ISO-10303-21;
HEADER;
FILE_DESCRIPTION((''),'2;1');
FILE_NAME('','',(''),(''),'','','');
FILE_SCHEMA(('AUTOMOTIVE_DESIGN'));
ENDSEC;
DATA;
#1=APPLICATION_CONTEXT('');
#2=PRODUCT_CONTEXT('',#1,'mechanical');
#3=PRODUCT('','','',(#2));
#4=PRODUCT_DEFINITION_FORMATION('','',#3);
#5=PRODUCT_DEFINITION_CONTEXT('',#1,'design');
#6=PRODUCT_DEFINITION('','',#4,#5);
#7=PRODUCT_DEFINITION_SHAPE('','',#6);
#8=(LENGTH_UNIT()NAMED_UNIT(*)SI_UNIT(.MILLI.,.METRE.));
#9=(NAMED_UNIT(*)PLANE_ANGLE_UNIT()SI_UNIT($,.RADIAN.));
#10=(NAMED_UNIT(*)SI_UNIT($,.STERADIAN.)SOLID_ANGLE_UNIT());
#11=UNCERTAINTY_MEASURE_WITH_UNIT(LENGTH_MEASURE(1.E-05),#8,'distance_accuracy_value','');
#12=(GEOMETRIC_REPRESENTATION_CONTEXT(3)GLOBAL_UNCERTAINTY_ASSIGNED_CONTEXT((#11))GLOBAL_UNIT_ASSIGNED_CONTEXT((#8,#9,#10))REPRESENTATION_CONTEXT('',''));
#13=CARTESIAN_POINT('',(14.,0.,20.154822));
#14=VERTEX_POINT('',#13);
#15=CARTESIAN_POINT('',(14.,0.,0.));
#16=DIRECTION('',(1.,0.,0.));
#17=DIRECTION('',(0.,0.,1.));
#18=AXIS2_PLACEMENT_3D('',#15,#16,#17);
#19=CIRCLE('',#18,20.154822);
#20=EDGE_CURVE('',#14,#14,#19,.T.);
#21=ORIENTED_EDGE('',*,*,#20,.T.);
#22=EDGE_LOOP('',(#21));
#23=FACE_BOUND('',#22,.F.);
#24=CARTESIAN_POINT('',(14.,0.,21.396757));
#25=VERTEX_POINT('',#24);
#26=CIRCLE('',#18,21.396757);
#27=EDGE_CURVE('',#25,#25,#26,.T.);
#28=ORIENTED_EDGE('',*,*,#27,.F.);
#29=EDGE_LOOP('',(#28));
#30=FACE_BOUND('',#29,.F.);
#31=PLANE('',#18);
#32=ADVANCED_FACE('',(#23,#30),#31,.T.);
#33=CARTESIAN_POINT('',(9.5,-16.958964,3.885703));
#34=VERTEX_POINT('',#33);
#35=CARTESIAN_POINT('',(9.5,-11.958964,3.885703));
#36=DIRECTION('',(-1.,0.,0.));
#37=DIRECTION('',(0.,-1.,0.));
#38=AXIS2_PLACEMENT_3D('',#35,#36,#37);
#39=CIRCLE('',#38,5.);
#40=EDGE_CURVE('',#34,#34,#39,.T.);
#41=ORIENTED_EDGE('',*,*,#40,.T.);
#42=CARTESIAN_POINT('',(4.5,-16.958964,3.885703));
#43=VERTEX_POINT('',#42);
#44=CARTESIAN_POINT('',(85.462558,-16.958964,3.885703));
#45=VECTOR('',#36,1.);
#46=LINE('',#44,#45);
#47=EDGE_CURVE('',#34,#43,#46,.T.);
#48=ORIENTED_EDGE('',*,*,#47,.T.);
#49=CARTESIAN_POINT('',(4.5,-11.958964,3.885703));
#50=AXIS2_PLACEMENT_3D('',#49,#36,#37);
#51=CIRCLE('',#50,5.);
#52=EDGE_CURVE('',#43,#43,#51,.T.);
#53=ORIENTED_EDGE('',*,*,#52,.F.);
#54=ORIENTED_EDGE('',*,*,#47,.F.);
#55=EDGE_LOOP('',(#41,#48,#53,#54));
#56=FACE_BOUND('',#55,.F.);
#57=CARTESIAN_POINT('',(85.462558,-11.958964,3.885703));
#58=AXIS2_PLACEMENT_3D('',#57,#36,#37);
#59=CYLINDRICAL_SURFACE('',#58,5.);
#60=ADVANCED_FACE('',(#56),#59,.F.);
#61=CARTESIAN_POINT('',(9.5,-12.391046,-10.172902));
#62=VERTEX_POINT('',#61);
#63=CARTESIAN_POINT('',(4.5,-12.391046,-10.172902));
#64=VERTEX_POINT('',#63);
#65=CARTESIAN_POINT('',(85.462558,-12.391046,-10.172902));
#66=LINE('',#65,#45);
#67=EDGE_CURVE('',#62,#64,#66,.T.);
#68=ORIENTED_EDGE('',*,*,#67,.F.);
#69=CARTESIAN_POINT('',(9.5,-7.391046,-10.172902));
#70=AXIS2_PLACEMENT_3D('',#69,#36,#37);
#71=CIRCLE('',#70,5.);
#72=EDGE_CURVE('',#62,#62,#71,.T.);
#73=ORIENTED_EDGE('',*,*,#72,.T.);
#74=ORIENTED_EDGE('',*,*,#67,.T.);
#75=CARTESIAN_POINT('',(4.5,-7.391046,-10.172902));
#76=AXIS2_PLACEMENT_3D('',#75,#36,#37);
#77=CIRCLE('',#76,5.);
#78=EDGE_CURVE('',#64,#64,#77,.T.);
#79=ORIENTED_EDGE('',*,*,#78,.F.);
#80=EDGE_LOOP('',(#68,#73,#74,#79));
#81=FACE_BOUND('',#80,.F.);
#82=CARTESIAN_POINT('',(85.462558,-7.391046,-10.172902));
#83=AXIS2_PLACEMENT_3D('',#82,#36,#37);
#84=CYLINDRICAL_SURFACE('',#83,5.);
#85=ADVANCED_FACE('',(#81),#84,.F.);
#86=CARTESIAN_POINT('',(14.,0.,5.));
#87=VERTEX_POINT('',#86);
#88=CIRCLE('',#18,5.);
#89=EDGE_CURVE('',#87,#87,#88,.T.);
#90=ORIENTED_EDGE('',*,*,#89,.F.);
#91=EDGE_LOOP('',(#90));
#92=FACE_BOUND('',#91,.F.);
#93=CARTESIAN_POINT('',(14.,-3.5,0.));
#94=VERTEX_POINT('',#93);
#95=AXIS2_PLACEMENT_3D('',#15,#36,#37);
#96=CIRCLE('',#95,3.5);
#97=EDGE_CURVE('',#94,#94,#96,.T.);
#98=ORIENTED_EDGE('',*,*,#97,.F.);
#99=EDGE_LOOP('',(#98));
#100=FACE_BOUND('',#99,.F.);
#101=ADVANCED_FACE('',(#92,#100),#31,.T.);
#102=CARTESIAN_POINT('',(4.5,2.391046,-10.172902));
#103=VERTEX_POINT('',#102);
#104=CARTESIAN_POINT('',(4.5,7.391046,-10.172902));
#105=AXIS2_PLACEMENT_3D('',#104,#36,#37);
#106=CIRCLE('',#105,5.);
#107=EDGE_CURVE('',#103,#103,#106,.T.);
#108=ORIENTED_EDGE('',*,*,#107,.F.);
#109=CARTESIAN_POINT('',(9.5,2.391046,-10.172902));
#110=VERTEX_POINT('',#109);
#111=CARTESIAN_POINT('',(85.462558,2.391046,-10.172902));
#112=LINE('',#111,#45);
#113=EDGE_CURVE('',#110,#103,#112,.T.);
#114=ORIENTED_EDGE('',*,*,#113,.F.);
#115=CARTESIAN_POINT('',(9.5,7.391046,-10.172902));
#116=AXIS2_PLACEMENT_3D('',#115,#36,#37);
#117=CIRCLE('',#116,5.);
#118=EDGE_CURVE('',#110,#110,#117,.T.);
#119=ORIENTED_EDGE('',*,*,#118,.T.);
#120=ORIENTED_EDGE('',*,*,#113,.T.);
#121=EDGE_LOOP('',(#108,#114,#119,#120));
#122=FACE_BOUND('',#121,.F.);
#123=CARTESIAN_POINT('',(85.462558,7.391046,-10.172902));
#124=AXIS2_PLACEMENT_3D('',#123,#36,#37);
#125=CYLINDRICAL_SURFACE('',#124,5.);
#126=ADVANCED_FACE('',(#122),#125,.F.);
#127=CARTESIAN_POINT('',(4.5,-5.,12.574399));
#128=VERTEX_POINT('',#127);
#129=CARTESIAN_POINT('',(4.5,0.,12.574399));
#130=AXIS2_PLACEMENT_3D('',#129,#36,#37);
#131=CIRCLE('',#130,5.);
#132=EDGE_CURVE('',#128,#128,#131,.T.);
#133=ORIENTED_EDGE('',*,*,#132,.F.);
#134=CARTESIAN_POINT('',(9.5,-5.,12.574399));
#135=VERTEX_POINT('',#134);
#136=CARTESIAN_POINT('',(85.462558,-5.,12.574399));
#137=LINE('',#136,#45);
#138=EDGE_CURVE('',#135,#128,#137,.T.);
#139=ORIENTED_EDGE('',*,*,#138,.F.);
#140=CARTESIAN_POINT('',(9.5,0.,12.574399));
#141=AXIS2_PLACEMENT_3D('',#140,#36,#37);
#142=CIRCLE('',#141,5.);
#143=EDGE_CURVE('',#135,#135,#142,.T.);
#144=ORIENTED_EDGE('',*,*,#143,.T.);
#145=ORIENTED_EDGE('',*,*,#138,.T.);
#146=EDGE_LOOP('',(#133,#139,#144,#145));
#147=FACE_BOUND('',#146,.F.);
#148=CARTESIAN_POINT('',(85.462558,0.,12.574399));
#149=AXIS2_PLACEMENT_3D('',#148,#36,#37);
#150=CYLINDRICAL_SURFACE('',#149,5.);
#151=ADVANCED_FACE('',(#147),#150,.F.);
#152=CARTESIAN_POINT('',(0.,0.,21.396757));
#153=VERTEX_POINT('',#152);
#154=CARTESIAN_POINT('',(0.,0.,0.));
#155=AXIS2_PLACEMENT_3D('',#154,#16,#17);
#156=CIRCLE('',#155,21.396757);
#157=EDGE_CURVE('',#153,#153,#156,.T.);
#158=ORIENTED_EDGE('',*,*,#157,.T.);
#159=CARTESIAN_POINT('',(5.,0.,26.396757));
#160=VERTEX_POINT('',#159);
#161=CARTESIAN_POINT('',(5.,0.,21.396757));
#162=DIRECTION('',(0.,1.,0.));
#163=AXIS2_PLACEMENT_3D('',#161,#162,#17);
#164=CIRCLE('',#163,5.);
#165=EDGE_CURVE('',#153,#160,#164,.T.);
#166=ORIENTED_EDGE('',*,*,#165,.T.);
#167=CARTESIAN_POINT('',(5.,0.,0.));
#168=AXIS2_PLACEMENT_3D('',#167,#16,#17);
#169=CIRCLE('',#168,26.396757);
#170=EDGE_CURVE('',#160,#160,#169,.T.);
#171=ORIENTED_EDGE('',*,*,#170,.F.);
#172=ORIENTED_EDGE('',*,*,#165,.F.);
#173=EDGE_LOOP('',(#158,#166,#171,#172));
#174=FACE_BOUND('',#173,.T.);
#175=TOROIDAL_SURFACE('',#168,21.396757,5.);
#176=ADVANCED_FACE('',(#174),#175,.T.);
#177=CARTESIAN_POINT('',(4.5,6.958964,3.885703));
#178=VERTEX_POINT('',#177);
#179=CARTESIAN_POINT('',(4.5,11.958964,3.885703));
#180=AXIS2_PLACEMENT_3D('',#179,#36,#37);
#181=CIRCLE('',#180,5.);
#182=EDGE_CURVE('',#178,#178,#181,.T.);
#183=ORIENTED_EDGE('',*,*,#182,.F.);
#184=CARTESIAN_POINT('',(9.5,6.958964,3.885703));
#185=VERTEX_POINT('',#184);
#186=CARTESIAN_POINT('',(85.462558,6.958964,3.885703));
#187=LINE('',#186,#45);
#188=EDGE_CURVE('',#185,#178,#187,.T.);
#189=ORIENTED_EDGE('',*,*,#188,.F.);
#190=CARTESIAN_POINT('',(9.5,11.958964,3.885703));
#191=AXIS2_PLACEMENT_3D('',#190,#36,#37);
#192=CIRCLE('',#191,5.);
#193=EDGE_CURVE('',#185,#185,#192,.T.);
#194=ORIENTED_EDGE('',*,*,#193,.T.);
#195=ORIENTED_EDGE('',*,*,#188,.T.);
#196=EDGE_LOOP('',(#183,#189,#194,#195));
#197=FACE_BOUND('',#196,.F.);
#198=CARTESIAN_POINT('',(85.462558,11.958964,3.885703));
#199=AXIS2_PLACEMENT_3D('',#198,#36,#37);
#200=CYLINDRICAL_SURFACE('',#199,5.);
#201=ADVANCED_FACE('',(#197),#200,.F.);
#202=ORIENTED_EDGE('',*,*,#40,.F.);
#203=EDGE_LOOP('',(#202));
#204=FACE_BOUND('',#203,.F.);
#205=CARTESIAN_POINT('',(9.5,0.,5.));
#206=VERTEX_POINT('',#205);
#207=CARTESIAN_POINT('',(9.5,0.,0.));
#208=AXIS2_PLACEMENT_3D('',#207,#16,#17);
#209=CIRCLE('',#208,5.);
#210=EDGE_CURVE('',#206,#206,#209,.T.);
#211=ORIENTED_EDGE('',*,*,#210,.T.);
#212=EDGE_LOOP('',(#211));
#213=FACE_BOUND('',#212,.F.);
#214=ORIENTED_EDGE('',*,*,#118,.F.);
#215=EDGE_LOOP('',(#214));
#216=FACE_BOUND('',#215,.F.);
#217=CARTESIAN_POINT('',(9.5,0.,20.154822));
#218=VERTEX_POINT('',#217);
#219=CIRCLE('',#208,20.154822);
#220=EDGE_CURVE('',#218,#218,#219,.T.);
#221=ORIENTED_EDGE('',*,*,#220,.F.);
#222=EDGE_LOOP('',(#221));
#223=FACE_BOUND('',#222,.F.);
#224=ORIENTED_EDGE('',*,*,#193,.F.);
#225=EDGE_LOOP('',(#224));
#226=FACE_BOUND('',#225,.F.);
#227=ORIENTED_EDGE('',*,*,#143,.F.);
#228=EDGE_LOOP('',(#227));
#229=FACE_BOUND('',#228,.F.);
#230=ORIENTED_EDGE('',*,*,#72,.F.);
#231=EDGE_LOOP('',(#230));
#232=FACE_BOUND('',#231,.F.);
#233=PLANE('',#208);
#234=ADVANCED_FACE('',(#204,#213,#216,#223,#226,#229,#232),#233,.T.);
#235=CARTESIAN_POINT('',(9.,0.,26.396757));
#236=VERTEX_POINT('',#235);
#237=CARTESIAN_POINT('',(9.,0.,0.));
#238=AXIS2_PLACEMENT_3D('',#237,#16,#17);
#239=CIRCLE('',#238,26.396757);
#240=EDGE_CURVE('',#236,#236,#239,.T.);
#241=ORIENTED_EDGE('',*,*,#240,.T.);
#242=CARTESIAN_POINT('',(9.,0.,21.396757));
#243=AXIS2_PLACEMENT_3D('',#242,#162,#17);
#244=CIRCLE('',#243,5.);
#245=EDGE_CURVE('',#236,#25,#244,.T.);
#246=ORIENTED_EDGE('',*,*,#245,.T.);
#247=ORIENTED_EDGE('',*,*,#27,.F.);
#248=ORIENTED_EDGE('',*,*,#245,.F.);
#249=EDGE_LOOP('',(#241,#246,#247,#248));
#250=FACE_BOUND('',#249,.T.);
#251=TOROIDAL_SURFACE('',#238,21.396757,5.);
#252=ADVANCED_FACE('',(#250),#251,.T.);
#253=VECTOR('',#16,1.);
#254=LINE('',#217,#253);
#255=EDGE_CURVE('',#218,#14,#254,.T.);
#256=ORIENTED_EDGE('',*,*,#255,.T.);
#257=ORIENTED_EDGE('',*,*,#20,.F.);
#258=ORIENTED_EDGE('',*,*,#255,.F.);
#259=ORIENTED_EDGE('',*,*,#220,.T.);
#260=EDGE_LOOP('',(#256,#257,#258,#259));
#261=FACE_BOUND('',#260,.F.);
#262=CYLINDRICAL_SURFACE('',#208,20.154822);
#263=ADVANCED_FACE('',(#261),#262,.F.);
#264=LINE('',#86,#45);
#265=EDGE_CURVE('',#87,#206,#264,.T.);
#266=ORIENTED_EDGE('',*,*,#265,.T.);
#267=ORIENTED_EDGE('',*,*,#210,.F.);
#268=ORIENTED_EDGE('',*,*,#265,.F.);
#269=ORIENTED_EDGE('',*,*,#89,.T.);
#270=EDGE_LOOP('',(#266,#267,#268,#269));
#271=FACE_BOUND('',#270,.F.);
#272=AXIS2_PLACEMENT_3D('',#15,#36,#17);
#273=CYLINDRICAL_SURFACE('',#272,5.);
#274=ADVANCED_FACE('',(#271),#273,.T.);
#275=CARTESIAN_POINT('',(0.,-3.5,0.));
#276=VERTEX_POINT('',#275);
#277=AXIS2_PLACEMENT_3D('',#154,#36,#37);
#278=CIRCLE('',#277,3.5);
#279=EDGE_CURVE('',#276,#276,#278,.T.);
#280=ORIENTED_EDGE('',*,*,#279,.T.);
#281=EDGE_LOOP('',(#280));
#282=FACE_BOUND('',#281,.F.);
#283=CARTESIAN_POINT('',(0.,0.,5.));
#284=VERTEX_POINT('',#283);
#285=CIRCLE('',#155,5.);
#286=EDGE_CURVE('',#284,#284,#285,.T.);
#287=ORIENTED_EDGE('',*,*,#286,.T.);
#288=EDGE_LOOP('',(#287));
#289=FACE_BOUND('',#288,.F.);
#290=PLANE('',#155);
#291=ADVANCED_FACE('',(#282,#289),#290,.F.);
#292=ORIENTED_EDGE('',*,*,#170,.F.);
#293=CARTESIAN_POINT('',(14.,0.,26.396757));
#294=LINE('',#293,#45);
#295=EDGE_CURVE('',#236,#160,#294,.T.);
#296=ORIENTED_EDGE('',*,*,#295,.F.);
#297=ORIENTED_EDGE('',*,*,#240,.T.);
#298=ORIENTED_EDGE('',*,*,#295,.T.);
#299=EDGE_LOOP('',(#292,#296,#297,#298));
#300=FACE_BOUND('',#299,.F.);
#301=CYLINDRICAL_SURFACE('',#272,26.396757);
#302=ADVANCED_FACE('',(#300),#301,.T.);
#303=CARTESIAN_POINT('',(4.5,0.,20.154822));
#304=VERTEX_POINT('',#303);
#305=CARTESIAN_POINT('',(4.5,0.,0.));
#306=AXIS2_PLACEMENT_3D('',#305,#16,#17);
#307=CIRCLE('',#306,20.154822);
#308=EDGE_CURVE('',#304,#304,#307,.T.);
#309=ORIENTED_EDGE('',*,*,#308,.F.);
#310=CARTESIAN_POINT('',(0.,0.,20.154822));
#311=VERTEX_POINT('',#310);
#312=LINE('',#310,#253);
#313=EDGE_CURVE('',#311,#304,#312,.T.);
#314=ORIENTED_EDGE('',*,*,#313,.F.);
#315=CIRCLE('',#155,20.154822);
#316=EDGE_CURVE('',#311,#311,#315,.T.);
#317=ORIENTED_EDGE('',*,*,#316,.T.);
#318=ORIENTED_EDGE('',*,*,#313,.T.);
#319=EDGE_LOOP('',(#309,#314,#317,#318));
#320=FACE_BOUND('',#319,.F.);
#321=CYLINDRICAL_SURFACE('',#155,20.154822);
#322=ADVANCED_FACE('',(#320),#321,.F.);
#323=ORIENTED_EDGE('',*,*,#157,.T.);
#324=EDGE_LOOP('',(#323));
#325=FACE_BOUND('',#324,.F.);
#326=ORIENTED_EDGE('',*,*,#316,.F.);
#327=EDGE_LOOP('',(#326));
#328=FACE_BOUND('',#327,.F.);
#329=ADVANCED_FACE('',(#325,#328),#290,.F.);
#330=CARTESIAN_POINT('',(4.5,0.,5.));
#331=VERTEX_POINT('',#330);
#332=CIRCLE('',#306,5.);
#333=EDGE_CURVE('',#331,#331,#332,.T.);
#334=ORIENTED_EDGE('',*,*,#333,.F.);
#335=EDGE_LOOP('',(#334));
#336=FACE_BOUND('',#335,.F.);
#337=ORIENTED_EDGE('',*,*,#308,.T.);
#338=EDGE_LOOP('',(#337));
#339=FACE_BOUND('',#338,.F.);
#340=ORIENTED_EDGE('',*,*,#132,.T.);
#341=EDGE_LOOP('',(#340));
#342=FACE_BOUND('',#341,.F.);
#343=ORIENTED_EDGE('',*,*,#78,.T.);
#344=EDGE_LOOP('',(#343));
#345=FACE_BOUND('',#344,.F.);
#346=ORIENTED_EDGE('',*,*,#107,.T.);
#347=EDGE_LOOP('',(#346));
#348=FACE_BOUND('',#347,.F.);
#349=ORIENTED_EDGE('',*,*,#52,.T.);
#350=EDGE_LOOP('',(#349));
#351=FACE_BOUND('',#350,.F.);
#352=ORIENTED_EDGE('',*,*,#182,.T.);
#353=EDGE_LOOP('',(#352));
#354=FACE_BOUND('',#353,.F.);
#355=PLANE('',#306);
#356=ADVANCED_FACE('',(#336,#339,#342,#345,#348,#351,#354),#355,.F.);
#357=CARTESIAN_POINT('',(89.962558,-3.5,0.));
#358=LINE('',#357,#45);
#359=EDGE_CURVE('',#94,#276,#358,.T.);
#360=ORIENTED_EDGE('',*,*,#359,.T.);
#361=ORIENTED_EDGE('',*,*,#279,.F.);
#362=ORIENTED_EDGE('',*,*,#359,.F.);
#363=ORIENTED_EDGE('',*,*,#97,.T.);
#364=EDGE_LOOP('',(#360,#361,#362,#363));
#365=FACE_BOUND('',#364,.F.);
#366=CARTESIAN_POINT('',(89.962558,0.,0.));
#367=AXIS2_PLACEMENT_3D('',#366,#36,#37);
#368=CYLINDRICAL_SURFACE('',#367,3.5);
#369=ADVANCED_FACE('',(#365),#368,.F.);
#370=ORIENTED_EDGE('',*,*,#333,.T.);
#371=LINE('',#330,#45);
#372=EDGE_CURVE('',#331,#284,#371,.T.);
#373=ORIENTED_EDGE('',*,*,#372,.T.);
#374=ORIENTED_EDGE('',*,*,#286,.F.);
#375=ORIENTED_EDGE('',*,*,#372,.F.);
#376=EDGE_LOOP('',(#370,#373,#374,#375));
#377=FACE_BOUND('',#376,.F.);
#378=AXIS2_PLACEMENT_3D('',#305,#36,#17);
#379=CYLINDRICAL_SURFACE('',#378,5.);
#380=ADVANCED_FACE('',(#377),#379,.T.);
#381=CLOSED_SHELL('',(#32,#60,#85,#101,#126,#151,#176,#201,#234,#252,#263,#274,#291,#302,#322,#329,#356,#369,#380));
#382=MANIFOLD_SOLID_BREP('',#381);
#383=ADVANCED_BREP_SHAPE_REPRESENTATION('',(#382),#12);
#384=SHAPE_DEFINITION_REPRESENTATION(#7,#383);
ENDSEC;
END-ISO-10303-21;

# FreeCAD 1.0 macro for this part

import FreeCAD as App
import Part
import Sketcher
from FreeCAD import Vector


def edges_at(feature, points):
    """Names of the edges that pass closest to the given points."""
    edges = feature.Shape.Edges
    near = lambda p: min(range(len(edges)), key=lambda i: edges[i].distToShape(Part.Vertex(*p))[0])
    return sorted({f"Edge{near(p) + 1}" for p in points})

doc = App.newDocument("Part")
body = doc.addObject("PartDesign::Body", "Body")

# Sketch on XZ plane
sketch1 = body.newObject("Sketcher::SketchObject", "Sketch")
sketch1.AttachmentSupport = (doc.getObject("XZ_Plane"), [""])
sketch1.MapMode = "FlatFace"
sketch1.addGeometry([
    Part.LineSegment(Vector(0, 5, 0), Vector(0, 0, 0)),  # 0
    Part.LineSegment(Vector(0, 0, 0), Vector(14, 0, 0)),  # 1
    Part.LineSegment(Vector(14, 0, 0), Vector(14, 5, 0)),  # 2
    Part.LineSegment(Vector(14, 5, 0), Vector(9.5, 5, 0)),  # 3
    Part.LineSegment(Vector(9.5, 5, 0), Vector(9.5, 20.2, 0)),  # 4
    Part.LineSegment(Vector(9.5, 20.2, 0), Vector(14, 20.2, 0)),  # 5
    Part.LineSegment(Vector(14, 20.2, 0), Vector(14, 26.4, 0)),  # 6
    Part.LineSegment(Vector(14, 26.4, 0), Vector(0, 26.4, 0)),  # 7
    Part.LineSegment(Vector(0, 26.4, 0), Vector(0, 20.2, 0)),  # 8
    Part.LineSegment(Vector(0, 20.2, 0), Vector(4.5, 20.2, 0)),  # 9
    Part.LineSegment(Vector(4.5, 20.2, 0), Vector(4.5, 5, 0)),  # 10
    Part.LineSegment(Vector(4.5, 5, 0), Vector(0, 5, 0)),  # 11
], False)
sketch1.addConstraint([
    Sketcher.Constraint("Coincident", 0, 2, 1, 1),
    Sketcher.Constraint("Coincident", 1, 2, 2, 1),
    Sketcher.Constraint("Coincident", 2, 2, 3, 1),
    Sketcher.Constraint("Coincident", 3, 2, 4, 1),
    Sketcher.Constraint("Coincident", 4, 2, 5, 1),
    Sketcher.Constraint("Coincident", 5, 2, 6, 1),
    Sketcher.Constraint("Coincident", 6, 2, 7, 1),
    Sketcher.Constraint("Coincident", 7, 2, 8, 1),
    Sketcher.Constraint("Coincident", 8, 2, 9, 1),
    Sketcher.Constraint("Coincident", 9, 2, 10, 1),
    Sketcher.Constraint("Coincident", 10, 2, 11, 1),
    Sketcher.Constraint("Coincident", 11, 2, 0, 1),
    Sketcher.Constraint("Vertical", 0),
    Sketcher.Constraint("Horizontal", 1),
    Sketcher.Constraint("Vertical", 2),
    Sketcher.Constraint("Horizontal", 3),
    Sketcher.Constraint("Vertical", 4),
    Sketcher.Constraint("Horizontal", 5),
    Sketcher.Constraint("Vertical", 6),
    Sketcher.Constraint("Horizontal", 7),
    Sketcher.Constraint("Vertical", 8),
    Sketcher.Constraint("Horizontal", 9),
    Sketcher.Constraint("Vertical", 10),
    Sketcher.Constraint("Horizontal", 11),
    Sketcher.Constraint("Coincident", 0, 2, -1, 1),
    Sketcher.Constraint("PointOnObject", 7, 2, -2),
    Sketcher.Constraint("Horizontal", 5, 2, 8, 2),
    Sketcher.Constraint("Horizontal", 3, 2, 10, 2),
    Sketcher.Constraint("Vertical", 2, 2, 5, 2),
    Sketcher.Constraint("Equal", 5, 9),
    Sketcher.Constraint("DistanceX", 1, 1, 1, 2, 14.0),
    Sketcher.Constraint("DistanceY", 0, 2, 0, 1, 5.0),
    Sketcher.Constraint("DistanceX", 3, 2, 3, 1, 4.5),
    Sketcher.Constraint("DistanceY", 4, 1, 4, 2, 15.154822),
    Sketcher.Constraint("DistanceY", 6, 1, 6, 2, 6.241935),
])
revolution = body.newObject("PartDesign::Revolution", "Revolution")
revolution.Profile = sketch1
revolution.ReferenceAxis = (sketch1, ["H_Axis"])
revolution.Angle = 360

# Sketch on YZ plane
sketch2 = body.newObject("Sketcher::SketchObject", "Sketch001")
sketch2.AttachmentSupport = (doc.getObject("YZ_Plane"), [""])
sketch2.MapMode = "FlatFace"
sketch2.AttachmentOffset = App.Placement(Vector(0, 0, 9.5), App.Rotation())
sketch2.addGeometry([
    Part.Circle(Vector(0, 13, 0), Vector(0, 0, 1), 5),  # 0
    Part.Circle(Vector(-12, 4, 0), Vector(0, 0, 1), 5),  # 1
    Part.Circle(Vector(-7, -10, 0), Vector(0, 0, 1), 5),  # 2
    Part.Circle(Vector(7, -10, 0), Vector(0, 0, 1), 5),  # 3
    Part.Circle(Vector(12, 4, 0), Vector(0, 0, 1), 5),  # 4
], False)
sketch2.addConstraint([
    Sketcher.Constraint("Equal", 0, 1),
    Sketcher.Constraint("Equal", 1, 2),
    Sketcher.Constraint("Equal", 2, 3),
    Sketcher.Constraint("Equal", 3, 4),
    Sketcher.Constraint("Symmetric", 2, 3, 3, 3, -2),
    Sketcher.Constraint("Symmetric", 1, 3, 4, 3, -2),
    Sketcher.Constraint("PointOnObject", 0, 3, -2),
    Sketcher.Constraint("Diameter", 0, 10.0),
    Sketcher.Constraint("DistanceY", -1, 1, 0, 3, 12.574399),
    Sketcher.Constraint("DistanceY", 2, 3, 0, 3, 22.747301),
    Sketcher.Constraint("DistanceX", 1, 3, 3, 3, 19.35001),
    Sketcher.Constraint("DistanceX", 1, 3, 4, 3, 23.917928),
    Sketcher.Constraint("DistanceY", -1, 1, 1, 3, 3.885703),
])
doc.recompute()
hole = body.newObject("PartDesign::Hole", "Hole")
hole.Profile = sketch2
hole.ThreadType = "None"
hole.Diameter = 10
hole.DepthType = "ThroughAll"
doc.recompute()

fillet = body.newObject("PartDesign::Fillet", "Fillet")
fillet.Base = (hole, edges_at(hole, [(14, 0, -26.397), (0, 0, -26.397)]))
fillet.Radius = 5

# Sketch on YZ plane
sketch3 = body.newObject("Sketcher::SketchObject", "Sketch002")
sketch3.AttachmentSupport = (doc.getObject("YZ_Plane"), [""])
sketch3.MapMode = "FlatFace"
sketch3.AttachmentOffset = App.Placement(Vector(0, 0, 14), App.Rotation())
sketch3.addGeometry(Part.Circle(Vector(0, 0, 0), Vector(0, 0, 1), 3.5), False)
sketch3.addConstraint([
    Sketcher.Constraint("Coincident", 0, 3, -1, 1),
    Sketcher.Constraint("Diameter", 0, 7.0),
])
doc.recompute()
hole2 = body.newObject("PartDesign::Hole", "Hole001")
hole2.Profile = sketch3
hole2.ThreadType = "None"
hole2.Diameter = 7
hole2.DepthType = "ThroughAll"

doc.recompute()
